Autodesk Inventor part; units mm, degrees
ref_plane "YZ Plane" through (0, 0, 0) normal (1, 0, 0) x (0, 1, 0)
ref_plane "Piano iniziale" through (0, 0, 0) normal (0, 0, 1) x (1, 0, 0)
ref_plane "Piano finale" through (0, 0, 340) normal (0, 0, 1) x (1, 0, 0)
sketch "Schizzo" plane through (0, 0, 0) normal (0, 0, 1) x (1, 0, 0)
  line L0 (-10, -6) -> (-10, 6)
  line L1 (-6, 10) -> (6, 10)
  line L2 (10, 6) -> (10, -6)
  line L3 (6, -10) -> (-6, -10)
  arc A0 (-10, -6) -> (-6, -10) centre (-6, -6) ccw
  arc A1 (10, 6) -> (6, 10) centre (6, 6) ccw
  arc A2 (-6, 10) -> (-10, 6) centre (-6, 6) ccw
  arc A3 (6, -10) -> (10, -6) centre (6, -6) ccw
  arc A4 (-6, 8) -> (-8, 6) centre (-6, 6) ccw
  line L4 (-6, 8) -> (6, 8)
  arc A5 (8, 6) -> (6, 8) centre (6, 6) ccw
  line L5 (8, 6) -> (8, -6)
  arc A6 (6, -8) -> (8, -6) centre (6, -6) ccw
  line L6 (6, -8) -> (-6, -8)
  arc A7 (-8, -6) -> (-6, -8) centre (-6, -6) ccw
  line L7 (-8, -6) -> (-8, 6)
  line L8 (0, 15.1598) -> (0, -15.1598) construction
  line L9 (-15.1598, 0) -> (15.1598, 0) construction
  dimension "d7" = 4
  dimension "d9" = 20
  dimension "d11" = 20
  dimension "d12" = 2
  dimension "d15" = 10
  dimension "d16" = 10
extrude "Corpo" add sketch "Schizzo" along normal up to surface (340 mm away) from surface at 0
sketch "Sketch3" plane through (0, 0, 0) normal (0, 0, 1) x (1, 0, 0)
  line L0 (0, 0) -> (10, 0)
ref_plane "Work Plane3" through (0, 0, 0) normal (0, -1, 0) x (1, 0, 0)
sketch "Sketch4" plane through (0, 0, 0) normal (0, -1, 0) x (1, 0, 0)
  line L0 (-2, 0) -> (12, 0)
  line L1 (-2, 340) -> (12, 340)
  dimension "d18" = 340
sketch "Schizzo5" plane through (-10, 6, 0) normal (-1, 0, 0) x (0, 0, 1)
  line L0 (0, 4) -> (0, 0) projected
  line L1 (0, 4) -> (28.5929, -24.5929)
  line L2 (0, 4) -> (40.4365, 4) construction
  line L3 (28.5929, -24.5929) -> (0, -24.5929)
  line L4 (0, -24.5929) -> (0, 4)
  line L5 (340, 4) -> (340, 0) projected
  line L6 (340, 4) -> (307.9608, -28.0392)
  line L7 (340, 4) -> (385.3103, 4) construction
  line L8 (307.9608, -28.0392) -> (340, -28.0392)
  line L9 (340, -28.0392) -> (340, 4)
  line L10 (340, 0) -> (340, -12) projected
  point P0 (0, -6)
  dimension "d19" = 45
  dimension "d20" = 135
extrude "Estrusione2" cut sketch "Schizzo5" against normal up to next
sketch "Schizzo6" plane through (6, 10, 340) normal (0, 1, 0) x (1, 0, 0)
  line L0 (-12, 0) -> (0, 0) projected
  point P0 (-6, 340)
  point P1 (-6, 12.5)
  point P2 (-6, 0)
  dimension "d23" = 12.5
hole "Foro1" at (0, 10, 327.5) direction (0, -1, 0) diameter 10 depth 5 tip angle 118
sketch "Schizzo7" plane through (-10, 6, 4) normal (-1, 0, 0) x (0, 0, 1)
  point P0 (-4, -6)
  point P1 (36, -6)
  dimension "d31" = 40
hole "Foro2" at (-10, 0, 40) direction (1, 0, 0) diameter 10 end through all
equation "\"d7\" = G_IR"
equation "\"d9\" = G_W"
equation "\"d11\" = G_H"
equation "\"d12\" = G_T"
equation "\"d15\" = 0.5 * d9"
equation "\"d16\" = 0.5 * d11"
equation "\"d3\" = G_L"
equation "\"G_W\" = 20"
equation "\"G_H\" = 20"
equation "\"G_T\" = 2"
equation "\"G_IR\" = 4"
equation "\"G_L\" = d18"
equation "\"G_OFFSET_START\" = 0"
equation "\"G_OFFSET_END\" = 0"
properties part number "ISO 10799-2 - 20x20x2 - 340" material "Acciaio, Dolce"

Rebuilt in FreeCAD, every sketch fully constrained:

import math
import FreeCAD as App
import Part
import Sketcher

V = App.Vector


def add_polygon(sketch, points):
    """Adds a closed chain of lines whose ends are joined by coincident constraints."""
    first, n = sketch.GeometryCount, len(points)
    for a, b in zip(points, points[1:] + points[:1]):
        sketch.addGeometry(Part.LineSegment(App.Vector(*a, 0), App.Vector(*b, 0)), False)
    for i in range(n):
        sketch.addConstraint(Sketcher.Constraint("Coincident", first + i, 2, first + (i + 1) % n, 1))

doc = App.newDocument("Part")
params = doc.addObject("Spreadsheet::Sheet", "Params")
for row, (alias, value) in enumerate([
    ("sketch1_radius", "4 mm"),
    ("sketch1_radius2", "2 mm"),
    ("pad1_length", "340 mm"),
    ("pocket1_length", "20 mm"),
    ("sketch3_diameter", "10 mm"),
    ("hole_diameter", "10 mm"),
    ("hole_depth", "5 mm"),
    ("sketch4_diameter", "10 mm"),
    ("hole2_diameter", "10 mm"),
], start=1):
    params.set(f"A{row}", alias)
    params.set(f"B{row}", "=" + value)
    params.setAlias(f"B{row}", alias)

body = doc.addObject("PartDesign::Body", "Body")

# Sketch on XY plane
sketch1 = body.newObject("Sketcher::SketchObject", "Sketch")
sketch1.AttachmentSupport = (doc.getObject("XY_Plane"), [""])
sketch1.MapMode = "FlatFace"
sketch1.addGeometry(Part.LineSegment(V(-10, 6, 0), V(-10, -6, 0)), False)
sketch1.addGeometry(Part.ArcOfCircle(Part.Circle(V(-6, -6, 0), V(0, 0, 1), 4), math.radians(180), math.radians(270)), False)
sketch1.addGeometry(Part.LineSegment(V(-6, -10, 0), V(6, -10, 0)), False)
sketch1.addGeometry(Part.ArcOfCircle(Part.Circle(V(6, -6, 0), V(0, 0, 1), 4), math.radians(-90), math.radians(0)), False)
sketch1.addGeometry(Part.LineSegment(V(10, -6, 0), V(10, 6, 0)), False)
sketch1.addGeometry(Part.ArcOfCircle(Part.Circle(V(6, 6, 0), V(0, 0, 1), 4), math.radians(0), math.radians(90)), False)
sketch1.addGeometry(Part.LineSegment(V(6, 10, 0), V(-6, 10, 0)), False)
sketch1.addGeometry(Part.ArcOfCircle(Part.Circle(V(-6, 6, 0), V(0, 0, 1), 4), math.radians(90), math.radians(180)), False)
sketch1.addGeometry(Part.ArcOfCircle(Part.Circle(V(-6, 6, 0), V(0, 0, 1), 2), math.radians(90), math.radians(180)), False)
sketch1.addGeometry(Part.LineSegment(V(-6, 8, 0), V(6, 8, 0)), False)
sketch1.addGeometry(Part.ArcOfCircle(Part.Circle(V(6, 6, 0), V(0, 0, 1), 2), math.radians(0), math.radians(90)), False)
sketch1.addGeometry(Part.LineSegment(V(8, 6, 0), V(8, -6, 0)), False)
sketch1.addGeometry(Part.ArcOfCircle(Part.Circle(V(6, -6, 0), V(0, 0, 1), 2), math.radians(-90), math.radians(0)), False)
sketch1.addGeometry(Part.LineSegment(V(6, -8, 0), V(-6, -8, 0)), False)
sketch1.addGeometry(Part.ArcOfCircle(Part.Circle(V(-6, -6, 0), V(0, 0, 1), 2), math.radians(180), math.radians(270)), False)
sketch1.addGeometry(Part.LineSegment(V(-8, -6, 0), V(-8, 6, 0)), False)
sketch1.addConstraint(Sketcher.Constraint("Tangent", 0, 2, 1, 1))
sketch1.addConstraint(Sketcher.Constraint("Tangent", 1, 2, 2, 1))
sketch1.addConstraint(Sketcher.Constraint("Tangent", 2, 2, 3, 1))
sketch1.addConstraint(Sketcher.Constraint("Tangent", 3, 2, 4, 1))
sketch1.addConstraint(Sketcher.Constraint("Tangent", 4, 2, 5, 1))
sketch1.addConstraint(Sketcher.Constraint("Tangent", 5, 2, 6, 1))
sketch1.addConstraint(Sketcher.Constraint("Tangent", 6, 2, 7, 1))
sketch1.addConstraint(Sketcher.Constraint("Tangent", 7, 2, 0, 1))
sketch1.addConstraint(Sketcher.Constraint("Tangent", 8, 1, 9, 1))
sketch1.addConstraint(Sketcher.Constraint("Tangent", 9, 2, 10, 2))
sketch1.addConstraint(Sketcher.Constraint("Tangent", 10, 1, 11, 1))
sketch1.addConstraint(Sketcher.Constraint("Tangent", 11, 2, 12, 2))
sketch1.addConstraint(Sketcher.Constraint("Tangent", 12, 1, 13, 1))
sketch1.addConstraint(Sketcher.Constraint("Tangent", 13, 2, 14, 2))
sketch1.addConstraint(Sketcher.Constraint("Tangent", 14, 1, 15, 1))
sketch1.addConstraint(Sketcher.Constraint("Tangent", 15, 2, 8, 2))
sketch1.addConstraint(Sketcher.Constraint("Vertical", 0))
sketch1.addConstraint(Sketcher.Constraint("Horizontal", 2))
sketch1.addConstraint(Sketcher.Constraint("Vertical", 4))
sketch1.addConstraint(Sketcher.Constraint("Horizontal", 6))
sketch1.addConstraint(Sketcher.Constraint("Horizontal", 9))
sketch1.addConstraint(Sketcher.Constraint("Vertical", 11))
sketch1.addConstraint(Sketcher.Constraint("Horizontal", 13))
sketch1.addConstraint(Sketcher.Constraint("Vertical", 15))
sketch1.addConstraint(Sketcher.Constraint("Coincident", 8, 3, 7, 3))
sketch1.addConstraint(Sketcher.Constraint("Coincident", 10, 3, 5, 3))
sketch1.addConstraint(Sketcher.Constraint("Coincident", 12, 3, 3, 3))
sketch1.addConstraint(Sketcher.Constraint("Equal", 1, 3))
sketch1.addConstraint(Sketcher.Constraint("Equal", 3, 5))
sketch1.addConstraint(Sketcher.Constraint("Equal", 5, 7))
sketch1.addConstraint(Sketcher.Constraint("Equal", 12, 14))
sketch1.addConstraint(Sketcher.Constraint("Symmetric", 1, 3, 5, 3, -1, 1))
sketch1.addConstraint(Sketcher.Constraint("Equal", 13, 0))
sketch1.addConstraint(Sketcher.Constraint("Radius", 1, 4.0))
sketch1.addConstraint(Sketcher.Constraint("Radius", 8, 2.0))
sketch1.addConstraint(Sketcher.Constraint("DistanceX", 0, 2, -1, 1, 10.0))
sketch1.setExpression("Constraints[33]", "Params.sketch1_radius")
sketch1.setExpression("Constraints[34]", "Params.sketch1_radius2")
pad1 = body.newObject("PartDesign::Pad", "Pad")
pad1.Profile = sketch1
pad1.setExpression("Length", "Params.pad1_length")

# Sketch on YZ plane
sketch2 = body.newObject("Sketcher::SketchObject", "Sketch001")
sketch2.AttachmentSupport = (doc.getObject("YZ_Plane"), [""])
sketch2.MapMode = "FlatFace"
sketch2.AttachmentOffset = App.Placement(V(0, 0, -10), App.Rotation())
add_polygon(sketch2, [(-19, 29), (10, 0), (-19, 0)])  # lines 0-2
add_polygon(sketch2, [(-22, 340), (10, 340), (-22, 308)])  # lines 3-5
sketch2.addConstraint(Sketcher.Constraint("Horizontal", 1))
sketch2.addConstraint(Sketcher.Constraint("Vertical", 2))
sketch2.addConstraint(Sketcher.Constraint("Horizontal", 3))
sketch2.addConstraint(Sketcher.Constraint("Vertical", 5))
sketch2.addConstraint(Sketcher.Constraint("PointOnObject", 0, 2, -1))
sketch2.addConstraint(Sketcher.Constraint("Perpendicular", 0, 4))
sketch2.addConstraint(Sketcher.Constraint("Vertical", 0, 2, 3, 2))
sketch2.addConstraint(Sketcher.Constraint("Equal", 1, 2))
sketch2.addConstraint(Sketcher.Constraint("DistanceX", -1, 1, 0, 2, 10.0))
sketch2.addConstraint(Sketcher.Constraint("DistanceY", -1, 1, 3, 2, 340.0))
sketch2.addConstraint(Sketcher.Constraint("DistanceX", 1, 2, 1, 1, 28.593))
sketch2.addConstraint(Sketcher.Constraint("DistanceX", 3, 1, 3, 2, 32.0392))
pocket1 = body.newObject("PartDesign::Pocket", "Pocket")
pocket1.Profile = sketch2
pocket1.setExpression("Length", "Params.pocket1_length")
pocket1.Reversed = True

# Sketch on XZ plane
sketch3 = body.newObject("Sketcher::SketchObject", "Sketch002")
sketch3.AttachmentSupport = (doc.getObject("XZ_Plane"), [""])
sketch3.MapMode = "FlatFace"
sketch3.AttachmentOffset = App.Placement(V(0, 0, -10), App.Rotation())
sketch3.addGeometry(Part.Circle(V(0, 328, 0), V(0, 0, 1), 5), False)
sketch3.addConstraint(Sketcher.Constraint("PointOnObject", 0, 3, -2))
sketch3.addConstraint(Sketcher.Constraint("Diameter", 0, 10.0))
sketch3.addConstraint(Sketcher.Constraint("DistanceY", -1, 1, 0, 3, 327.5))
sketch3.setExpression("Constraints[1]", "Params.sketch3_diameter")
doc.recompute()
hole = body.newObject("PartDesign::Hole", "Hole")
hole.Profile = sketch3
hole.ThreadType = "None"
hole.setExpression("Diameter", "Params.hole_diameter")
hole.DepthType = "Dimension"
hole.setExpression("Depth", "Params.hole_depth")
hole.DrillPoint = "Angled"
hole.DrillPointAngle = 118
hole.Reversed = True

# Sketch on YZ plane
sketch4 = body.newObject("Sketcher::SketchObject", "Sketch003")
sketch4.AttachmentSupport = (doc.getObject("YZ_Plane"), [""])
sketch4.MapMode = "FlatFace"
sketch4.AttachmentOffset = App.Placement(V(0, 0, -10), App.Rotation())
sketch4.addGeometry(Part.Circle(V(0, 40, 0), V(0, 0, 1), 5), False)
sketch4.addConstraint(Sketcher.Constraint("PointOnObject", 0, 3, -2))
sketch4.addConstraint(Sketcher.Constraint("Diameter", 0, 10.0))
sketch4.addConstraint(Sketcher.Constraint("DistanceY", -1, 1, 0, 3, 40.0))
sketch4.setExpression("Constraints[1]", "Params.sketch4_diameter")
doc.recompute()
hole2 = body.newObject("PartDesign::Hole", "Hole001")
hole2.Profile = sketch4
hole2.ThreadType = "None"
hole2.setExpression("Diameter", "Params.hole2_diameter")
hole2.DepthType = "ThroughAll"
hole2.Reversed = True

doc.recompute()
